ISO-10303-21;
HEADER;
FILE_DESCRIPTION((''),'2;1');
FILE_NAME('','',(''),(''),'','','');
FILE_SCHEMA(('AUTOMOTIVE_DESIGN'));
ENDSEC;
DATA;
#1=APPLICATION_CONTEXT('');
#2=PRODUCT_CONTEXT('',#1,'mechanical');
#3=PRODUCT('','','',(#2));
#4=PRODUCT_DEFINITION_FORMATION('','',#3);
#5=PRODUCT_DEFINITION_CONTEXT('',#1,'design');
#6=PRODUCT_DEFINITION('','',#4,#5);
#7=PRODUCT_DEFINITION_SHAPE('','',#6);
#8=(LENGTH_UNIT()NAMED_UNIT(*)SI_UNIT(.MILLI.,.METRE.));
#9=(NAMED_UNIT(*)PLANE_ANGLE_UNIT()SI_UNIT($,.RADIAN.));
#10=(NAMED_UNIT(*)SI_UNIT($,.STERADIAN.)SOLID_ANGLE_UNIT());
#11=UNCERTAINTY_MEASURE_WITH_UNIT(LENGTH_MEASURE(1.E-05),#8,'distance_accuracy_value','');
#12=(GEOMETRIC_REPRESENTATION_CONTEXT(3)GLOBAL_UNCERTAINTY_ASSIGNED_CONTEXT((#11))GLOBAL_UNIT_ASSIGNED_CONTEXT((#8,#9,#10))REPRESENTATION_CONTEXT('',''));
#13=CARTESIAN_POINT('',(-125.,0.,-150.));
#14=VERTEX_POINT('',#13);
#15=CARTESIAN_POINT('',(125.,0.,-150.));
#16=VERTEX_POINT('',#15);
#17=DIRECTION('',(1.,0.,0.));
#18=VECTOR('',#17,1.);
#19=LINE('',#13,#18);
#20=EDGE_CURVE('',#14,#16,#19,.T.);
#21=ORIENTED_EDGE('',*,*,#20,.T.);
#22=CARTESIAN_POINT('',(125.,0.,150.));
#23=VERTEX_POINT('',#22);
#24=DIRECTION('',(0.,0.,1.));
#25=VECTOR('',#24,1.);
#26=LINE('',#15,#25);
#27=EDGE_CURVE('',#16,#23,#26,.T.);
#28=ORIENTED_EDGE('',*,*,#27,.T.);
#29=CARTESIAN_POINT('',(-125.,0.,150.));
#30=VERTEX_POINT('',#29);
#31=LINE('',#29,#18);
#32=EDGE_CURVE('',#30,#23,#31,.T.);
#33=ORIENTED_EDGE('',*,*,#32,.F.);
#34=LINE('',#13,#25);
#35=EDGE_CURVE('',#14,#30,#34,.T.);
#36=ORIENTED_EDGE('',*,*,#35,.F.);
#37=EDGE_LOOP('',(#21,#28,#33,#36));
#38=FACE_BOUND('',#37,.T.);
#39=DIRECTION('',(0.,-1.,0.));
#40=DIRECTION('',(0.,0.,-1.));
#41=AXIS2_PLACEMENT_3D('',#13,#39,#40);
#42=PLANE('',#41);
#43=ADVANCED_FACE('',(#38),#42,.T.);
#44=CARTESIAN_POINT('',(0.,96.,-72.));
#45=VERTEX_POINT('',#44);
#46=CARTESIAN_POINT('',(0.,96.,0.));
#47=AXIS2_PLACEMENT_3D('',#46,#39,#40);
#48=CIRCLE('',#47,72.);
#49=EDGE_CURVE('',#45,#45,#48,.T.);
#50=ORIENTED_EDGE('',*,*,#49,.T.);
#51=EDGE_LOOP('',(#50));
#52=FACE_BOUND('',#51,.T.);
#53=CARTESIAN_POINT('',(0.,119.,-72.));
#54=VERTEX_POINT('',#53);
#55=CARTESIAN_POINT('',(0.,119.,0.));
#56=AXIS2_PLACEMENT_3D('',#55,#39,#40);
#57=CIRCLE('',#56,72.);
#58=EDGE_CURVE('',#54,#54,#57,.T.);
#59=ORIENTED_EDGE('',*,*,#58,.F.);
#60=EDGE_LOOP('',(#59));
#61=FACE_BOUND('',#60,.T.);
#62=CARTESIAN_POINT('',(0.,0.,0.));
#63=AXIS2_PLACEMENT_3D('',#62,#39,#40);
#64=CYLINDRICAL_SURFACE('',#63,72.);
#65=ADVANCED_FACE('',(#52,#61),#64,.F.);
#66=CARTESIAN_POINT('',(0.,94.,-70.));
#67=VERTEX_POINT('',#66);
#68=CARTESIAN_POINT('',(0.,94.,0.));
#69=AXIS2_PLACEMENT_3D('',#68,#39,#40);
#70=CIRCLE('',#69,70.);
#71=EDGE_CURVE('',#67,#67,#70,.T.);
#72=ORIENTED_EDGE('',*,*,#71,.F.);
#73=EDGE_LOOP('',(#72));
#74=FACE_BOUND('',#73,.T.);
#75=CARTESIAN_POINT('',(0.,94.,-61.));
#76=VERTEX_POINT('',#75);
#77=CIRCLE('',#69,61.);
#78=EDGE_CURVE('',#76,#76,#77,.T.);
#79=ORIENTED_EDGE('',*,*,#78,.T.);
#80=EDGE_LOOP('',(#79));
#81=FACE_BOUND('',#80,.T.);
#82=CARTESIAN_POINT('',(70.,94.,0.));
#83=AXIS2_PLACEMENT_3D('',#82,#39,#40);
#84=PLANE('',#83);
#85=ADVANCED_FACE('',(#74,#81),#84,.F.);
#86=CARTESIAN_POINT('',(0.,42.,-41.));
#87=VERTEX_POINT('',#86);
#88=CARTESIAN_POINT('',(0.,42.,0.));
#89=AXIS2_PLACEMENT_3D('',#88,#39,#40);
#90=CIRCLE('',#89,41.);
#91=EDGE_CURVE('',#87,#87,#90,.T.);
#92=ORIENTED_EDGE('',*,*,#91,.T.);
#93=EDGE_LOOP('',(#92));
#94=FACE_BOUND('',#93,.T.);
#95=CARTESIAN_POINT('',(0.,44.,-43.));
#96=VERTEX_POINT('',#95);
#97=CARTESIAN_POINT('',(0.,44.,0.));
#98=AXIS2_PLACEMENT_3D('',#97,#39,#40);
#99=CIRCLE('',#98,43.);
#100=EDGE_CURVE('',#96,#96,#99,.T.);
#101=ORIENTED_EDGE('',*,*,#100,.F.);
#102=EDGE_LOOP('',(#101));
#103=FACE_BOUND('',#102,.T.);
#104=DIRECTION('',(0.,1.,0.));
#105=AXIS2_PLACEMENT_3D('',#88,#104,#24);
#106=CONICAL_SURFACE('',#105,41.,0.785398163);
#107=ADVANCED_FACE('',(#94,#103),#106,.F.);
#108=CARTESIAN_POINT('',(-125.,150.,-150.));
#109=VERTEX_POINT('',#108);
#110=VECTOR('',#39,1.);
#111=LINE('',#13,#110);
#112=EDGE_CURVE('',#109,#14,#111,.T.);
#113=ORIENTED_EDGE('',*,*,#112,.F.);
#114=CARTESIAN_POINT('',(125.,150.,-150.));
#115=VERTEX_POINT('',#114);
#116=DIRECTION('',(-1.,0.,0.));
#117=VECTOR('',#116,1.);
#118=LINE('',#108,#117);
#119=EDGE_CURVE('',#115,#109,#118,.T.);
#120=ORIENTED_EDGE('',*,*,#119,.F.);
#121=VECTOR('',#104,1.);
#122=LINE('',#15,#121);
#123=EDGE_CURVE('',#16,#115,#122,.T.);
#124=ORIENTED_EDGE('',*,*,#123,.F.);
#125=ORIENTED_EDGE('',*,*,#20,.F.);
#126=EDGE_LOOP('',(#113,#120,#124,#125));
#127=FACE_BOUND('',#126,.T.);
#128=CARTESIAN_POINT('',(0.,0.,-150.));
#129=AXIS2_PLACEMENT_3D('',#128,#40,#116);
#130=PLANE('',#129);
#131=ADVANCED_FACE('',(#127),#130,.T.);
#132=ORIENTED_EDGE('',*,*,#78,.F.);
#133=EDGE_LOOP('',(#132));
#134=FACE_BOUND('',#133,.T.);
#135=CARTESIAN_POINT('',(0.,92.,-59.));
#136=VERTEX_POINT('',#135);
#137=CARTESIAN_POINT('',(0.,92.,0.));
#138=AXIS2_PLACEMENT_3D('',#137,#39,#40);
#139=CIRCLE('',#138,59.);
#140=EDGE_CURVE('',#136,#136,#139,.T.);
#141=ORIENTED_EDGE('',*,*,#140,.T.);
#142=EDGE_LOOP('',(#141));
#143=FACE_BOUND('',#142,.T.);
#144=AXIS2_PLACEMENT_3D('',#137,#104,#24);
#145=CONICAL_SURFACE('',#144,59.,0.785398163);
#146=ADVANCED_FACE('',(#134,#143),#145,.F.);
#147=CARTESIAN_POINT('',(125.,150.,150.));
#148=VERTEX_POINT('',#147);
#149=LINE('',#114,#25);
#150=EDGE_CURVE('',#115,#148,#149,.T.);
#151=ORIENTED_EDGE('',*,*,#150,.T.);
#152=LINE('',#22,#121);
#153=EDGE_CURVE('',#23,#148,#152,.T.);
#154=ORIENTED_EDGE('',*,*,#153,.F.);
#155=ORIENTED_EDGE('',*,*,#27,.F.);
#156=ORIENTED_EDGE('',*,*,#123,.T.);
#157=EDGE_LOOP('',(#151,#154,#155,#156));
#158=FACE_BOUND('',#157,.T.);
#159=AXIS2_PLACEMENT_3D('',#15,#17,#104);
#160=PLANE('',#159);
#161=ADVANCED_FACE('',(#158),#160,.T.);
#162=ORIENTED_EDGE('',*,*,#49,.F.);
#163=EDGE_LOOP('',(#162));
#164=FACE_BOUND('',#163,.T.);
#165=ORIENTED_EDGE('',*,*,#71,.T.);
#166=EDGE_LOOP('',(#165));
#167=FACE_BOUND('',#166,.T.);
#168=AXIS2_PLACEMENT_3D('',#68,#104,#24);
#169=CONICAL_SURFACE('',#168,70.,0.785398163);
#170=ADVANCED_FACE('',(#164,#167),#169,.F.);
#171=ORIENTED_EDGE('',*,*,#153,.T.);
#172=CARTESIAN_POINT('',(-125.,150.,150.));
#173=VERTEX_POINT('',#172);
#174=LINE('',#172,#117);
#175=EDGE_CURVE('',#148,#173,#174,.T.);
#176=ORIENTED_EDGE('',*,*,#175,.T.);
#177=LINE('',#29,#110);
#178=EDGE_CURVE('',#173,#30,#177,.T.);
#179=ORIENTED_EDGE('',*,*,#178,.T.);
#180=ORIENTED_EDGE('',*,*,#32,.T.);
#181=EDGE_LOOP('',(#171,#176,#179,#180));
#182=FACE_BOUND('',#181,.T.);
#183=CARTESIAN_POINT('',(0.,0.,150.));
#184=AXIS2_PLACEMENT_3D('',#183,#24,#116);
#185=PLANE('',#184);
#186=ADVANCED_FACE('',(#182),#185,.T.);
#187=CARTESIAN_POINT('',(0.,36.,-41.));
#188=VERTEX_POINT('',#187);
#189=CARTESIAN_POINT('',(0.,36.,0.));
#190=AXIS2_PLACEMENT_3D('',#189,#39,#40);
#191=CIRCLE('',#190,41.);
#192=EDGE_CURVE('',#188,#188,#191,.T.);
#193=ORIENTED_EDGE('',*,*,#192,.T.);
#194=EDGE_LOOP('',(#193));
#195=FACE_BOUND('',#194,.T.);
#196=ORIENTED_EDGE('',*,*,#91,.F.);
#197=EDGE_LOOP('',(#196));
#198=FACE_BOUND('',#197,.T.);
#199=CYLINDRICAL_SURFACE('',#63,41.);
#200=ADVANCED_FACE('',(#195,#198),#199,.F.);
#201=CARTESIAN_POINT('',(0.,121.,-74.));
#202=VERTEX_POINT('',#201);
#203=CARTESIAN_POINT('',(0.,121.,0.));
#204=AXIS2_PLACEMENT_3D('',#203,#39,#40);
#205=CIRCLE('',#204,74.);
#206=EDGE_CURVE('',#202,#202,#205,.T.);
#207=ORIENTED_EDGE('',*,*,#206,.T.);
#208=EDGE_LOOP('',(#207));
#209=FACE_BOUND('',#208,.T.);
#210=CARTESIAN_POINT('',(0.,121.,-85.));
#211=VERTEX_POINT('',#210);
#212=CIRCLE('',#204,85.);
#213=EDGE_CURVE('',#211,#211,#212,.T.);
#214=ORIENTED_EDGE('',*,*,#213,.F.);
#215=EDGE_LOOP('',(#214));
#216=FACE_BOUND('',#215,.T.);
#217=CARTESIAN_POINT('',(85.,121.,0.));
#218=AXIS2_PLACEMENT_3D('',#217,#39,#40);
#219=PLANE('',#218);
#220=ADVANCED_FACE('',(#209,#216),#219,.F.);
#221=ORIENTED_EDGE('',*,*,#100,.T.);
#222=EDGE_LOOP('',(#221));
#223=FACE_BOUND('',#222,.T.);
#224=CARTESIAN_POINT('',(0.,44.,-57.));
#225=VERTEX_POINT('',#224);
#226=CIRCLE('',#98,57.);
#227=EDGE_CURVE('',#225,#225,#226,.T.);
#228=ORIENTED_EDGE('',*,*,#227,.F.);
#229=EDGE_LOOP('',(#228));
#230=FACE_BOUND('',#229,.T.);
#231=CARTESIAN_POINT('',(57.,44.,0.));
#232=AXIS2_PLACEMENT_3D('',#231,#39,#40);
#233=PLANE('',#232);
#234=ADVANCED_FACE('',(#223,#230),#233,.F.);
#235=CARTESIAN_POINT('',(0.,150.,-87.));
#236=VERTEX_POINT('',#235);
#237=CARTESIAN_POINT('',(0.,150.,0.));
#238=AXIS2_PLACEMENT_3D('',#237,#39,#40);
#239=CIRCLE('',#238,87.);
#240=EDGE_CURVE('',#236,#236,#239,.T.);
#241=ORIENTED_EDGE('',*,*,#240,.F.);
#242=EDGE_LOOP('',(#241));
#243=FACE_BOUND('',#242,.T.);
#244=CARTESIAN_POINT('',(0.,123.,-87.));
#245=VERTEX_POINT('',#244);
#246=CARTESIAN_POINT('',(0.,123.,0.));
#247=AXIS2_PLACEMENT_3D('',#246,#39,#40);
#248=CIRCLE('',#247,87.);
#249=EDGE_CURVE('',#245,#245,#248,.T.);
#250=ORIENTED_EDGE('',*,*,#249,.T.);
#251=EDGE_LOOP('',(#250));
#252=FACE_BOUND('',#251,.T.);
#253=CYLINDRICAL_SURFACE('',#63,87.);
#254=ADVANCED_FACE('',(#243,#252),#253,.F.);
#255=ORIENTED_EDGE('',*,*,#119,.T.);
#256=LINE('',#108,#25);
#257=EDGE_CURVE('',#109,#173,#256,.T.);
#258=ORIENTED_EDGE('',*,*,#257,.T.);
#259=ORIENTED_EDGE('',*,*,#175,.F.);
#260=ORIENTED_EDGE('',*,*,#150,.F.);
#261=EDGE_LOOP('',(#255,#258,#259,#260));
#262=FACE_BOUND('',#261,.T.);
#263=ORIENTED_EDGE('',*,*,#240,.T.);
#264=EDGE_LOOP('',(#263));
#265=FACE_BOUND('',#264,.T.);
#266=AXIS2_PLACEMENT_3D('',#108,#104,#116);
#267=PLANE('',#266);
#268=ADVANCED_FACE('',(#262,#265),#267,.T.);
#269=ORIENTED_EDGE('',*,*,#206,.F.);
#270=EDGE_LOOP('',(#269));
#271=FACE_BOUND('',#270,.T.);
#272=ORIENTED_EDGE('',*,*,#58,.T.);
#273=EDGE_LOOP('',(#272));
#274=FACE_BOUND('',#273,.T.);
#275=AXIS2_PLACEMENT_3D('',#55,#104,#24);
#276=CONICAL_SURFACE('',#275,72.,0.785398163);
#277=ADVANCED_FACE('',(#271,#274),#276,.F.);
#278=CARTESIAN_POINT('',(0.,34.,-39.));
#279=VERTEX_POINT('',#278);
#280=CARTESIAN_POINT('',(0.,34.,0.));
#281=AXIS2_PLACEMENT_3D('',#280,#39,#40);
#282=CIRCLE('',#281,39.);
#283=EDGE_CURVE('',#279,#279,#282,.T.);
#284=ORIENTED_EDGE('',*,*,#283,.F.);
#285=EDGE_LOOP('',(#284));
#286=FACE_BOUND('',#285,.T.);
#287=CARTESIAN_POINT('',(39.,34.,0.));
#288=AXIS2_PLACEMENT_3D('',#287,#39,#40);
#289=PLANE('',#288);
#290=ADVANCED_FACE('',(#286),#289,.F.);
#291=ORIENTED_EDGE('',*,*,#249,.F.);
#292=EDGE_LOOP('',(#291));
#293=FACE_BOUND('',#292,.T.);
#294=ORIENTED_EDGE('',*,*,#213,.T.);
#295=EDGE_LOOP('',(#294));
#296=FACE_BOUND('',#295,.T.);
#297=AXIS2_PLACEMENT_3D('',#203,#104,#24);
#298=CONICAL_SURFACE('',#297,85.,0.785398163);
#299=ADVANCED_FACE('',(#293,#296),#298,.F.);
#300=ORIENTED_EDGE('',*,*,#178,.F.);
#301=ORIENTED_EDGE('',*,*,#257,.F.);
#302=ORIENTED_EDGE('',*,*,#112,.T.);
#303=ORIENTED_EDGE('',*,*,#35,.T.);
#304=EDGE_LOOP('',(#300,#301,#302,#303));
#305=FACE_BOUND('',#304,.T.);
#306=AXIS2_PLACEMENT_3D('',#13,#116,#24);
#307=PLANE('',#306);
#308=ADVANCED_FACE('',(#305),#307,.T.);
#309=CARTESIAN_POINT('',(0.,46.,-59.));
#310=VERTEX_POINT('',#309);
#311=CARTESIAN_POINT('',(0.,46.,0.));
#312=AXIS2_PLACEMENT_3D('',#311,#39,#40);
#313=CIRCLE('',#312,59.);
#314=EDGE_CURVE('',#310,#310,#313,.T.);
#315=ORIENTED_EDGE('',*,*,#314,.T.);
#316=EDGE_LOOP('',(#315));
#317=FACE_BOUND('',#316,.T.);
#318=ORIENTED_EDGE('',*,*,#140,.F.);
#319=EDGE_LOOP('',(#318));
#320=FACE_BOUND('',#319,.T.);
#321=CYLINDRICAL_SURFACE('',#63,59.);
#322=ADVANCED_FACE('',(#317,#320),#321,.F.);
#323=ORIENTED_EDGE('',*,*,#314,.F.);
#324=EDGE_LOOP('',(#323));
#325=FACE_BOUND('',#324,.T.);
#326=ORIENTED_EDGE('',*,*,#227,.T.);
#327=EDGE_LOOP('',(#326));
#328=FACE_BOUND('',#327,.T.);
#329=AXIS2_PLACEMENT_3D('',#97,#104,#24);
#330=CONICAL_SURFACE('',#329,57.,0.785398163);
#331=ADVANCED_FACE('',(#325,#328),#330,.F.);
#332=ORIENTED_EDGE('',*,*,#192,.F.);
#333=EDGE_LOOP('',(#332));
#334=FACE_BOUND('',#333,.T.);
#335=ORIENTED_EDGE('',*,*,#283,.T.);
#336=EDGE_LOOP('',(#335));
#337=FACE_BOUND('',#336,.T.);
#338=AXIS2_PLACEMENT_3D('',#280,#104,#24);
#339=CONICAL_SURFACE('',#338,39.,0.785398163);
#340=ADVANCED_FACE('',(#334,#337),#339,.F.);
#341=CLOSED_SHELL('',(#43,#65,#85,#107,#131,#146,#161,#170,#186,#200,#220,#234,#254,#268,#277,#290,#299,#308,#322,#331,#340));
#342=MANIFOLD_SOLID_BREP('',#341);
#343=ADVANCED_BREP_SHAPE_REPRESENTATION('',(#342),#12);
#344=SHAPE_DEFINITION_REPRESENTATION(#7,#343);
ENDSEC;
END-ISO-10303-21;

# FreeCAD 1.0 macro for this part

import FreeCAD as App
import Part
import Sketcher

V = App.Vector

doc = App.newDocument("Part")
body = doc.addObject("PartDesign::Body", "Body")

sketch1 = body.newObject("Sketcher::SketchObject", "Sketch")
sketch1.AttachmentSupport = (doc.getObject("XY_Plane"), [""])
sketch1.MapMode = "FlatFace"
sketch1.addGeometry([
    Part.LineSegment(V(-125, 150, 0), V(-125, 0, 0)),
    Part.LineSegment(V(-125, 0, 0), V(125, 0, 0)),
    Part.LineSegment(V(125, 0, 0), V(125, 150, 0)),
    Part.LineSegment(V(125, 150, 0), V(-125, 150, 0)),
], False)
sketch1.addConstraint([
    Sketcher.Constraint("Coincident", 0, 2, 1, 1),
    Sketcher.Constraint("Coincident", 1, 2, 2, 1),
    Sketcher.Constraint("Coincident", 2, 2, 3, 1),
    Sketcher.Constraint("Coincident", 3, 2, 0, 1),
    Sketcher.Constraint("Vertical", 0),
    Sketcher.Constraint("Horizontal", 1),
    Sketcher.Constraint("Vertical", 2),
    Sketcher.Constraint("Horizontal", 3),
    Sketcher.Constraint("Symmetric", 0, 2, 1, 2, -1, 1),
    Sketcher.Constraint("DistanceX", 1, 1, 1, 2, 250.0),
    Sketcher.Constraint("DistanceY", 0, 2, 0, 1, 150.0),
])
pad1 = body.newObject("PartDesign::Pad", "Pad")
pad1.Profile = sketch1
pad1.Length = 150
pad1.Reversed = True

sketch2 = body.newObject("Sketcher::SketchObject", "Sketch001")
sketch2.AttachmentSupport = (doc.getObject("XY_Plane"), [""])
sketch2.MapMode = "FlatFace"
sketch2.addGeometry([
    Part.LineSegment(V(87, 150, 0), V(0, 150, 0)),
    Part.LineSegment(V(0, 150, 0), V(0, 34, 0)),
    Part.LineSegment(V(0, 34, 0), V(39, 34, 0)),
    Part.LineSegment(V(39, 34, 0), V(41, 36, 0)),
    Part.LineSegment(V(41, 36, 0), V(41, 42, 0)),
    Part.LineSegment(V(41, 42, 0), V(43, 44, 0)),
    Part.LineSegment(V(43, 44, 0), V(57, 44, 0)),
    Part.LineSegment(V(57, 44, 0), V(59, 46, 0)),
    Part.LineSegment(V(59, 46, 0), V(59, 92, 0)),
    Part.LineSegment(V(59, 92, 0), V(61, 94, 0)),
    Part.LineSegment(V(61, 94, 0), V(70, 94, 0)),
    Part.LineSegment(V(70, 94, 0), V(72, 96, 0)),
    Part.LineSegment(V(72, 96, 0), V(72, 119, 0)),
    Part.LineSegment(V(72, 119, 0), V(74, 121, 0)),
    Part.LineSegment(V(74, 121, 0), V(85, 121, 0)),
    Part.LineSegment(V(85, 121, 0), V(87, 123, 0)),
    Part.LineSegment(V(87, 123, 0), V(87, 150, 0)),
], False)
sketch2.addConstraint([
    Sketcher.Constraint("Coincident", 0, 2, 1, 1),
    Sketcher.Constraint("Coincident", 1, 2, 2, 1),
    Sketcher.Constraint("Coincident", 2, 2, 3, 1),
    Sketcher.Constraint("Coincident", 3, 2, 4, 1),
    Sketcher.Constraint("Coincident", 4, 2, 5, 1),
    Sketcher.Constraint("Coincident", 5, 2, 6, 1),
    Sketcher.Constraint("Coincident", 6, 2, 7, 1),
    Sketcher.Constraint("Coincident", 7, 2, 8, 1),
    Sketcher.Constraint("Coincident", 8, 2, 9, 1),
    Sketcher.Constraint("Coincident", 9, 2, 10, 1),
    Sketcher.Constraint("Coincident", 10, 2, 11, 1),
    Sketcher.Constraint("Coincident", 11, 2, 12, 1),
    Sketcher.Constraint("Coincident", 12, 2, 13, 1),
    Sketcher.Constraint("Coincident", 13, 2, 14, 1),
    Sketcher.Constraint("Coincident", 14, 2, 15, 1),
    Sketcher.Constraint("Coincident", 15, 2, 16, 1),
    Sketcher.Constraint("Coincident", 16, 2, 0, 1),
    Sketcher.Constraint("Horizontal", 0),
    Sketcher.Constraint("Vertical", 1),
    Sketcher.Constraint("Horizontal", 2),
    Sketcher.Constraint("Vertical", 4),
    Sketcher.Constraint("Horizontal", 6),
    Sketcher.Constraint("Vertical", 8),
    Sketcher.Constraint("Horizontal", 10),
    Sketcher.Constraint("Vertical", 12),
    Sketcher.Constraint("Horizontal", 14),
    Sketcher.Constraint("Vertical", 16),
    Sketcher.Constraint("PointOnObject", 0, 2, -2),
    Sketcher.Constraint("Parallel", 3, 5),
    Sketcher.Constraint("Parallel", 5, 7),
    Sketcher.Constraint("Parallel", 7, 9),
    Sketcher.Constraint("Parallel", 9, 11),
    Sketcher.Constraint("Parallel", 11, 13),
    Sketcher.Constraint("Parallel", 13, 15),
    Sketcher.Constraint("Equal", 3, 5),
    Sketcher.Constraint("Equal", 5, 7),
    Sketcher.Constraint("Equal", 7, 9),
    Sketcher.Constraint("Equal", 9, 11),
    Sketcher.Constraint("Equal", 11, 13),
    Sketcher.Constraint("Equal", 13, 15),
    Sketcher.Constraint("DistanceX", 0, 2, 0, 1, 87.0),
    Sketcher.Constraint("DistanceX", 2, 1, 2, 2, 39.0),
    Sketcher.Constraint("DistanceX", 6, 1, 6, 2, 14.0),
    Sketcher.Constraint("DistanceX", 10, 1, 10, 2, 9.0),
    Sketcher.Constraint("DistanceX", 14, 1, 14, 2, 11.0),
    Sketcher.Constraint("DistanceY", 1, 2, 1, 1, 116.0),
    Sketcher.Constraint("DistanceY", 4, 1, 4, 2, 6.0),
    Sketcher.Constraint("DistanceY", 8, 1, 8, 2, 46.0),
    Sketcher.Constraint("DistanceY", 12, 1, 12, 2, 23.0),
    Sketcher.Constraint("DistanceY", 16, 1, 16, 2, 27.0),
    Sketcher.Constraint("DistanceY", -1, 1, 0, 2, 150.0),
])
groove = body.newObject("PartDesign::Groove", "Groove")
groove.Profile = sketch2
groove.ReferenceAxis = (sketch2, ["V_Axis"])
groove.Angle = 360
doc.recompute()

mirrored = body.newObject("PartDesign::Mirrored", "Mirrored")
mirrored.Originals = [pad1, groove]
mirrored.MirrorPlane = (doc.getObject("XY_Plane"), [""])
body.Tip = mirrored

doc.recompute()
